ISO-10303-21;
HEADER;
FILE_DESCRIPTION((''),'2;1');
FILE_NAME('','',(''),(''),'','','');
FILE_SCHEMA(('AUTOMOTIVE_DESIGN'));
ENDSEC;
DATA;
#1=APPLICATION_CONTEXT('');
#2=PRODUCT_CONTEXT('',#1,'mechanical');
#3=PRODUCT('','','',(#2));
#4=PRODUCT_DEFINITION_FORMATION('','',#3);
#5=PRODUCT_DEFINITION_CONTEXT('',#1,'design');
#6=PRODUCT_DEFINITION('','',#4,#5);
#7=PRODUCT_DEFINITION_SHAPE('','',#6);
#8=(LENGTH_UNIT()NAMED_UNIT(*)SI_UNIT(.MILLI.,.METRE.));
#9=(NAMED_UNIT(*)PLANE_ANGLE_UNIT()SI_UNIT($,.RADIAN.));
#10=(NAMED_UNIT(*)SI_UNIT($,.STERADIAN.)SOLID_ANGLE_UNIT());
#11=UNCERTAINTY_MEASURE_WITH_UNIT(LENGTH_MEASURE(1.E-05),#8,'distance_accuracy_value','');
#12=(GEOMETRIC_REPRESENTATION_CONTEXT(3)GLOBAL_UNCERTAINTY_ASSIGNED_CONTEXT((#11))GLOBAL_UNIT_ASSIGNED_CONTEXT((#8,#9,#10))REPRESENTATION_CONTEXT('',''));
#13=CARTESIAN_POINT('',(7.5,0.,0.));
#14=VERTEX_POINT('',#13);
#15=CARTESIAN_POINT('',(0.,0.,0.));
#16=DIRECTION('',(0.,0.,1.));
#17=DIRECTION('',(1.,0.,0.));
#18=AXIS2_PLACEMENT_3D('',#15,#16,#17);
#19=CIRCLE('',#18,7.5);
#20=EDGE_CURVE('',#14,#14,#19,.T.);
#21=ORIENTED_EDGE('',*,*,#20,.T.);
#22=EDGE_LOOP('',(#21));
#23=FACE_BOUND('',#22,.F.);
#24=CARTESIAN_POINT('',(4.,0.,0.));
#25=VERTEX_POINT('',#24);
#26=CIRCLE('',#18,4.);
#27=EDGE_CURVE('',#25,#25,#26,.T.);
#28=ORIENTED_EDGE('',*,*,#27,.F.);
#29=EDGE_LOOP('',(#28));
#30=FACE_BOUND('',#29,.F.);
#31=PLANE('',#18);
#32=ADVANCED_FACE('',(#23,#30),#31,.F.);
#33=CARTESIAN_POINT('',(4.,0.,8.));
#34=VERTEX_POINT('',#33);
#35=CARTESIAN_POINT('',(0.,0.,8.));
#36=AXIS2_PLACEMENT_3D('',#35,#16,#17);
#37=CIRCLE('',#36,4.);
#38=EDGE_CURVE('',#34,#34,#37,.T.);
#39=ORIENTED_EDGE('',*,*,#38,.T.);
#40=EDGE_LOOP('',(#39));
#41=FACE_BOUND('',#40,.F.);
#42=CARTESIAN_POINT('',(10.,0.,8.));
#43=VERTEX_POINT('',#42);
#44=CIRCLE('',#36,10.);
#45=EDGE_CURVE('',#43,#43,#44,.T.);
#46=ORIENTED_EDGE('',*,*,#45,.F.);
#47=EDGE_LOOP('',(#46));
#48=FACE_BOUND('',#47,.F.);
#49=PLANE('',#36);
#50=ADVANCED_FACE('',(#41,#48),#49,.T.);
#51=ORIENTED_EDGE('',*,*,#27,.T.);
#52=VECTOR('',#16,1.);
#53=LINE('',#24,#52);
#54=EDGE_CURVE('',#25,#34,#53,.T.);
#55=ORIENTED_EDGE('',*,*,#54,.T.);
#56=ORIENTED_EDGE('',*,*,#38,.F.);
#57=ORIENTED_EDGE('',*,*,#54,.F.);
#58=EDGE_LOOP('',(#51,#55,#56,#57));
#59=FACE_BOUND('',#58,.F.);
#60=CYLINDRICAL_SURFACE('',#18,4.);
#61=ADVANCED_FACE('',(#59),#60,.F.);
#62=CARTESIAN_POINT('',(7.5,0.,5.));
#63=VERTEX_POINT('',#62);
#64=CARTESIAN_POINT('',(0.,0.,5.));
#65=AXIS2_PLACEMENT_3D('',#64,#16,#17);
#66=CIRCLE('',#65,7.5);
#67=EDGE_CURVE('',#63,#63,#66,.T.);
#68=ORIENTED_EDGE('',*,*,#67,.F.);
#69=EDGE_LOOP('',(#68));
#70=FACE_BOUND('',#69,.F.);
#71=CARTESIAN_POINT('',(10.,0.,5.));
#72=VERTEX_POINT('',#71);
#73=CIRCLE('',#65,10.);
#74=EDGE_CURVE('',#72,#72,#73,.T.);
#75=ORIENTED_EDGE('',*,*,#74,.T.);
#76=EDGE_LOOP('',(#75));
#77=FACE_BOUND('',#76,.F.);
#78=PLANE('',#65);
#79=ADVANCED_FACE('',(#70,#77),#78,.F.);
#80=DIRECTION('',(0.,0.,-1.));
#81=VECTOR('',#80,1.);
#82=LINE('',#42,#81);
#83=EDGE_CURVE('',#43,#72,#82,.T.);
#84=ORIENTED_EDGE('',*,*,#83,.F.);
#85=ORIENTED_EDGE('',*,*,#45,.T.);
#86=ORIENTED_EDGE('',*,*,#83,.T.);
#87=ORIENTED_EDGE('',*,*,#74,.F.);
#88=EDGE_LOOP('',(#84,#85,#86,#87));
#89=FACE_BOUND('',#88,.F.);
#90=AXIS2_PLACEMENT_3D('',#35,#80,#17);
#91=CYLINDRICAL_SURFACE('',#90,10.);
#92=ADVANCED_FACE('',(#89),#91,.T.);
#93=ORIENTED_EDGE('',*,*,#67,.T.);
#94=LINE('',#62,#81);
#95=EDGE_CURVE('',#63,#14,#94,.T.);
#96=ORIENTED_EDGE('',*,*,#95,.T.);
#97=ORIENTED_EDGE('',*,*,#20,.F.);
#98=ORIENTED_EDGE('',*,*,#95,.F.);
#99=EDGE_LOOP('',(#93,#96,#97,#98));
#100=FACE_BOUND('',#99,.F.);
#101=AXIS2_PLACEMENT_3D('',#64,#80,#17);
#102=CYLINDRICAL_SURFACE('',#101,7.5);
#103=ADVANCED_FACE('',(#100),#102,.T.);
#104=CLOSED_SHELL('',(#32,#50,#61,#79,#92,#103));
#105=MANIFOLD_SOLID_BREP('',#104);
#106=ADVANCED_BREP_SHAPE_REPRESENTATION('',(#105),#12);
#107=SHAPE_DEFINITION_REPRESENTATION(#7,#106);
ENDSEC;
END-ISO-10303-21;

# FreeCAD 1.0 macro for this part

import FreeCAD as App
import Part
import Sketcher
from FreeCAD import Vector
Q = App.Units.Quantity


def add_polygon(sketch, points):
    """Adds a closed chain of lines whose ends are joined by coincident constraints."""
    first, n = sketch.GeometryCount, len(points)
    for a, b in zip(points, points[1:] + points[:1]):
        sketch.addGeometry(Part.LineSegment(App.Vector(*a, 0), App.Vector(*b, 0)), False)
    for i in range(n):
        sketch.addConstraint(Sketcher.Constraint("Coincident", first + i, 2, first + (i + 1) % n, 1))

doc = App.newDocument("Part")
body = doc.addObject("PartDesign::Body", "Body")

# Sketch on XZ plane
sketch1 = body.newObject("Sketcher::SketchObject", "Sketch")
sketch1.AttachmentSupport = (doc.getObject("XZ_Plane"), [""])
sketch1.MapMode = "FlatFace"
add_polygon(sketch1, [(4, 8), (4, 0), (7.5, 0), (7.5, 5), (10, 5), (10, 8)])  # lines 0-5
sketch1.addConstraint([
    Sketcher.Constraint("Vertical", 0),
    Sketcher.Constraint("Horizontal", 1),
    Sketcher.Constraint("Vertical", 2),
    Sketcher.Constraint("Horizontal", 3),
    Sketcher.Constraint("Vertical", 4),
    Sketcher.Constraint("Horizontal", 5),
    Sketcher.Constraint("PointOnObject", 0, 2, -1),
    Sketcher.Constraint("DistanceX", 5, 2, 5, 1, Q("6 mm")),
    Sketcher.Constraint("DistanceY", 0, 2, 0, 1, Q("8 mm")),
    Sketcher.Constraint("DistanceY", 2, 1, 2, 2, Q("5 mm")),
    Sketcher.Constraint("DistanceX", 1, 1, 1, 2, Q("3.5 mm")),
    Sketcher.Constraint("DistanceX", -1, 1, 0, 2, Q("4 mm")),
])
revolution = body.newObject("PartDesign::Revolution", "Revolution")
revolution.Profile = sketch1
revolution.ReferenceAxis = (sketch1, ["V_Axis"])
revolution.Angle = 360

doc.recompute()
